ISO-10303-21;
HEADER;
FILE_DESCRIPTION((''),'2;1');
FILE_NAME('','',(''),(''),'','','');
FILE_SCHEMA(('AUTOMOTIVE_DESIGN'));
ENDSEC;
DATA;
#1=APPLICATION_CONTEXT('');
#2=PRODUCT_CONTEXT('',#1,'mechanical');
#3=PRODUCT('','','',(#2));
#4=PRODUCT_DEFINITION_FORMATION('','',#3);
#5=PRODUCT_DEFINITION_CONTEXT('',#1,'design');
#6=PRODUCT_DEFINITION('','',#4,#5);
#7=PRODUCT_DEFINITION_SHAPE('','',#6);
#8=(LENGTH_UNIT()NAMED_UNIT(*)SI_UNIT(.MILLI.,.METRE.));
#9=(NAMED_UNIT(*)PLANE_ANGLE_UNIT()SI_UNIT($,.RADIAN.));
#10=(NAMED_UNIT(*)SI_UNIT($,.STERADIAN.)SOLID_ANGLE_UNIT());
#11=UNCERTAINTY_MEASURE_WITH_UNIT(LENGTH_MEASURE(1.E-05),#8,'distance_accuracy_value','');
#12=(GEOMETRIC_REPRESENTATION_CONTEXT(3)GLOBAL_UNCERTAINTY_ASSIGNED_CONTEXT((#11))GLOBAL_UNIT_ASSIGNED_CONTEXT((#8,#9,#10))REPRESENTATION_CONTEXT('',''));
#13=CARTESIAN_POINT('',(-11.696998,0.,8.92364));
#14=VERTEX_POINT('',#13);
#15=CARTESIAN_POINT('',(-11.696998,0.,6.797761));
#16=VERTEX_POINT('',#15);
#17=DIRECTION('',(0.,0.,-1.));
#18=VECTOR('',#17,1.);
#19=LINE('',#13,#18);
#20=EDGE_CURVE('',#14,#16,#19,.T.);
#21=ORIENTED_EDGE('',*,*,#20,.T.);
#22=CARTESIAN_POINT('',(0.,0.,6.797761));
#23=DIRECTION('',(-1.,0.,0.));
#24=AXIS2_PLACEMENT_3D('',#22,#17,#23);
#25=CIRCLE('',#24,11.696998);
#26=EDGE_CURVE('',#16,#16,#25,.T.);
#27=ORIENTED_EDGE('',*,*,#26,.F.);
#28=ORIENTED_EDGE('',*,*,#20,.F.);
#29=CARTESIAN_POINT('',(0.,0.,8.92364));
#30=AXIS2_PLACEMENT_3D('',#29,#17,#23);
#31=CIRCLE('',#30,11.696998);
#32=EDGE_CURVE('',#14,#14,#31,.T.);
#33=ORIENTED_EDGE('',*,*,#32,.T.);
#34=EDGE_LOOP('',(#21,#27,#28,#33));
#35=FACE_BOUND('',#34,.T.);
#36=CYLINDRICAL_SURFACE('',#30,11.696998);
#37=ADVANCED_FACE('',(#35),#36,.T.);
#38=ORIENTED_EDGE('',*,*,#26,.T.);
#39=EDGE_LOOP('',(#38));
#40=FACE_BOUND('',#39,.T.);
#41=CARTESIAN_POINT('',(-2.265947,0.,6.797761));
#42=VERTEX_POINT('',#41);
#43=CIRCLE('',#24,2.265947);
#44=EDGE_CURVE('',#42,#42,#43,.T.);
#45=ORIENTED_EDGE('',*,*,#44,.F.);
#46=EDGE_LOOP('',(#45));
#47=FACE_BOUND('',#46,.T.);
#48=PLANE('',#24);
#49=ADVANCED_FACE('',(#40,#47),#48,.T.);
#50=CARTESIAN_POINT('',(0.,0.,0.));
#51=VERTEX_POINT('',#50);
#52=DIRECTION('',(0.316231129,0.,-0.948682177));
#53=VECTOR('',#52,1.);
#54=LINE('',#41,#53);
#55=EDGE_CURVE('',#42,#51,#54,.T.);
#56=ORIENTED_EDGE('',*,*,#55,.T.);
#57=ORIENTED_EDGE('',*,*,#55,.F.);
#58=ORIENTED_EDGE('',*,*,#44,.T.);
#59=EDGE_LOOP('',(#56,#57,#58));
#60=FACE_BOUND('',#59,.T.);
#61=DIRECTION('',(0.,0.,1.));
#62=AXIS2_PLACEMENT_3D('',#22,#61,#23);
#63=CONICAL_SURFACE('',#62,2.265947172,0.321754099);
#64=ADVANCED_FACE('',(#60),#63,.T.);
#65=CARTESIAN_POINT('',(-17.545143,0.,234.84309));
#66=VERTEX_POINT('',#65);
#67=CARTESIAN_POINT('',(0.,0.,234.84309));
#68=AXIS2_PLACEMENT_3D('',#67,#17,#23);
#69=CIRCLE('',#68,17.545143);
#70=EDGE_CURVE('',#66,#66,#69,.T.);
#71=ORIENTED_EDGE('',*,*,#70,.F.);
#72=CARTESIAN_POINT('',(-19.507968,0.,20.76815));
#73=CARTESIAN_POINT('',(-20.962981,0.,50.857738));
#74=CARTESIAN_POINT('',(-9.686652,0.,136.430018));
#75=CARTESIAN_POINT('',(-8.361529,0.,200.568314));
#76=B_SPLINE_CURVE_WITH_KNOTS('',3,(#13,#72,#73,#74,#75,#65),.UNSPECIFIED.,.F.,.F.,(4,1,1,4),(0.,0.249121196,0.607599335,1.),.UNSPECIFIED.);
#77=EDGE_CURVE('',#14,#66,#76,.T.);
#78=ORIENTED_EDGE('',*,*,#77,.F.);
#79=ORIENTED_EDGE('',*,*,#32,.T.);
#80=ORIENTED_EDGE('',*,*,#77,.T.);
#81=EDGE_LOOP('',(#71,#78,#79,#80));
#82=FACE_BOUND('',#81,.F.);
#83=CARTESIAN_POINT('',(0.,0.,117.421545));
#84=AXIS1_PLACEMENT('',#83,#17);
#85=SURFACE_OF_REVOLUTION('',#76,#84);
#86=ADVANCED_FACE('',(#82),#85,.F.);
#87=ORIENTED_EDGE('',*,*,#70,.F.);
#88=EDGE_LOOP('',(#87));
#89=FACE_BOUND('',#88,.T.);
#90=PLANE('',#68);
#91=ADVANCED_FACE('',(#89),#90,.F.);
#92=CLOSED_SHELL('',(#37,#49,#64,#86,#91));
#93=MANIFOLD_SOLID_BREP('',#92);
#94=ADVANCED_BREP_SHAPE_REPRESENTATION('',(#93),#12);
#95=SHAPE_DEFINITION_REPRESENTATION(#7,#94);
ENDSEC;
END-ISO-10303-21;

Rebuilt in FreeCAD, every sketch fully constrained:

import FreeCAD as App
import Part
import Sketcher
from FreeCAD import Vector

doc = App.newDocument("Part")
body = doc.addObject("PartDesign::Body", "Body")

# Sketch on XZ plane
sketch1 = doc.addObject("Sketcher::SketchObject", "Sketch")
body.addObject(sketch1)
sketch1.AttachmentSupport = (doc.XZ_Plane, [""])
sketch1.MapMode = "FlatFace"
sketch1.addGeometry([
    Part.LineSegment(Vector(-2.265947, 6.797761, 0), Vector(0, 0, 0)),  # 0
    Part.LineSegment(Vector(0, 0, 0), Vector(0, 234.84309, 0)),  # 1
    Part.LineSegment(Vector(0, 234.84309, 0), Vector(-17.545143, 234.84309, 0)),  # 2
    Part.BSplineCurve([Vector(-11.696998, 8.92364, 0), Vector(-19.507968, 20.76815, 0), Vector(-20.962981, 50.857738, 0), Vector(-9.686652, 136.430018, 0), Vector(-8.361529, 200.568314, 0), Vector(-17.545143, 234.84309, 0)], [4, 1, 1, 4], [0, 0.249121196, 0.607599335, 1], False, 3, [1, 1, 1, 1, 1, 1], False),  # 3
    Part.LineSegment(Vector(-11.696998, 8.92364, 0), Vector(-11.696998, 6.797761, 0)),  # 4
    Part.LineSegment(Vector(-11.696998, 6.797761, 0), Vector(-2.265947, 6.797761, 0)),  # 5
], False)
sketch1.addConstraint([
    Sketcher.Constraint("Block", 3),
    Sketcher.Constraint("Coincident", 0, 2, 1, 1),
    Sketcher.Constraint("Coincident", 1, 2, 2, 1),
    Sketcher.Constraint("Coincident", 2, 2, 3, 2),
    Sketcher.Constraint("Coincident", 3, 1, 4, 1),
    Sketcher.Constraint("Coincident", 4, 2, 5, 1),
    Sketcher.Constraint("Coincident", 5, 2, 0, 1),
    Sketcher.Constraint("Vertical", 1),
    Sketcher.Constraint("Horizontal", 2),
    Sketcher.Constraint("Vertical", 4),
    Sketcher.Constraint("Horizontal", 5),
    Sketcher.Constraint("Coincident", 0, 2, -1, 1),
    Sketcher.Constraint("DistanceX", 5, 1, 5, 2, 9.431051),
    Sketcher.Constraint("DistanceY", 4, 2, 4, 1, 2.125878),
])
revolution = doc.addObject("PartDesign::Revolution", "Revolution")
body.addObject(revolution)
revolution.Profile = sketch1
revolution.ReferenceAxis = (sketch1, ["V_Axis"])
revolution.Angle = 360

doc.recompute()
